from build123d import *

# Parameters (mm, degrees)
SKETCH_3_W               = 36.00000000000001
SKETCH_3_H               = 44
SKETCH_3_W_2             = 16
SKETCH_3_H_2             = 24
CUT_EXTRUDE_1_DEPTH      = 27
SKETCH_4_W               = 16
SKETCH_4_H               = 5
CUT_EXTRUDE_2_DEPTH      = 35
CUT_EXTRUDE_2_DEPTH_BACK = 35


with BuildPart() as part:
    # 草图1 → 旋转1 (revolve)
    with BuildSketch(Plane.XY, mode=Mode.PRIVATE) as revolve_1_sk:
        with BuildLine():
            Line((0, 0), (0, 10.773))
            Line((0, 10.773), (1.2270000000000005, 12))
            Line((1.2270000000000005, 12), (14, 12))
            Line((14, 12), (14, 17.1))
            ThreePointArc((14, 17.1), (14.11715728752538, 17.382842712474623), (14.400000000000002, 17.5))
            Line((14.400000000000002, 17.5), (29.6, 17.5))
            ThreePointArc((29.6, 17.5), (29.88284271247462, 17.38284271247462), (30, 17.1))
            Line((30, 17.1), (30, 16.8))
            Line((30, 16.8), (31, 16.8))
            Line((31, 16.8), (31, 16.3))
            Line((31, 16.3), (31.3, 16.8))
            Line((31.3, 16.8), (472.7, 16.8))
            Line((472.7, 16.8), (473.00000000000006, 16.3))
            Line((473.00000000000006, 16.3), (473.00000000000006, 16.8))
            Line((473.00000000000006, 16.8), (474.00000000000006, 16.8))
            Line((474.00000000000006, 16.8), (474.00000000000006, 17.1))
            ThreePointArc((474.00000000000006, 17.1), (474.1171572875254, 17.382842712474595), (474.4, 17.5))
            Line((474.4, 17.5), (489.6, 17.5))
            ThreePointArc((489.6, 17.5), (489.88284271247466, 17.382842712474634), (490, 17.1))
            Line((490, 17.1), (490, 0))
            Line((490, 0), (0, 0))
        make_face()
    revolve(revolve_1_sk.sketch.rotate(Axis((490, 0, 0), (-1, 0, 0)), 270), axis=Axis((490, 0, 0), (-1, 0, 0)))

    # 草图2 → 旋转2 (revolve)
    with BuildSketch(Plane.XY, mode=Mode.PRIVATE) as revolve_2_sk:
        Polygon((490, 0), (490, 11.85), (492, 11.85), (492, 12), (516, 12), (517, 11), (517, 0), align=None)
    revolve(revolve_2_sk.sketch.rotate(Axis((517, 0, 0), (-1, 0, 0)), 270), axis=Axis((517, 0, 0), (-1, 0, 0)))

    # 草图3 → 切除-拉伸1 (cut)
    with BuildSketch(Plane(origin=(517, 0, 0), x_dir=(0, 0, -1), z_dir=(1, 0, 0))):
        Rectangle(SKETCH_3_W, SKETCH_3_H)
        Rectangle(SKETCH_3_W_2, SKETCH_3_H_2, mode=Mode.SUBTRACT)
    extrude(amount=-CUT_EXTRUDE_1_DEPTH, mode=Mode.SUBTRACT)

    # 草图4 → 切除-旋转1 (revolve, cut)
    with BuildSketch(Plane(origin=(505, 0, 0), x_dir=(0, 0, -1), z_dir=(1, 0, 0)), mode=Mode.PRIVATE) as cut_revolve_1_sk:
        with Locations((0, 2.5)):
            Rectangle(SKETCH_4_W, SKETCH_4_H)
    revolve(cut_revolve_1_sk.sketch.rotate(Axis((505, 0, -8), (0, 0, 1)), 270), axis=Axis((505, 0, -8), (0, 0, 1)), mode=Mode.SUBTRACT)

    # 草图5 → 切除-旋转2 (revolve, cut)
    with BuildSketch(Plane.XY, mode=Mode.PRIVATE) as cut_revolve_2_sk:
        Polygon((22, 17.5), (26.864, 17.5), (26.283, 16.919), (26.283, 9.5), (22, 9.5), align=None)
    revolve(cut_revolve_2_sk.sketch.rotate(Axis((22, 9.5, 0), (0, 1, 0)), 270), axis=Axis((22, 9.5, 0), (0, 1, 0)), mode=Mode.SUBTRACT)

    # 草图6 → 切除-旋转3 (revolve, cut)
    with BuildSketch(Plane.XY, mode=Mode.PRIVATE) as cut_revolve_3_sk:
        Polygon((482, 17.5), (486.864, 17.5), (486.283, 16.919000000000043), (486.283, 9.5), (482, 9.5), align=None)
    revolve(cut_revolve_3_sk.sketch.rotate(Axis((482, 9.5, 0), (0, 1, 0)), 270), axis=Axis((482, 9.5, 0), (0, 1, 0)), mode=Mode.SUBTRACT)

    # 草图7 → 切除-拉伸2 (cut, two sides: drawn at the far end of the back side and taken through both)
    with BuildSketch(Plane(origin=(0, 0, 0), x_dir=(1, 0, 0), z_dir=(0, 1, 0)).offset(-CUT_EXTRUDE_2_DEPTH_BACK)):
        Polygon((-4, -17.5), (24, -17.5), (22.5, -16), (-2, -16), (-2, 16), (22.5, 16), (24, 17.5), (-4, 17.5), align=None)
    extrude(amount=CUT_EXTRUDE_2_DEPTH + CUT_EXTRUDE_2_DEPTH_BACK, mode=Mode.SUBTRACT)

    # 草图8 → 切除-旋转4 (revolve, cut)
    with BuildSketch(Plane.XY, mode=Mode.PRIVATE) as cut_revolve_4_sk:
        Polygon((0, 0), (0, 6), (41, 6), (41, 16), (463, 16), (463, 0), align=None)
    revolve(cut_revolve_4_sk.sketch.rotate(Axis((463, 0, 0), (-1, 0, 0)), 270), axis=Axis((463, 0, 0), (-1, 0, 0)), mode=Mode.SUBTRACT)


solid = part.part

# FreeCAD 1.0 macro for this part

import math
import FreeCAD as App
import Part
import Sketcher
Q = App.Units.Quantity


def add_polygon(sketch, points):
    """Adds a closed chain of lines whose ends are joined by coincident constraints."""
    first, n = sketch.GeometryCount, len(points)
    for a, b in zip(points, points[1:] + points[:1]):
        sketch.addGeometry(Part.LineSegment(App.Vector(*a, 0), App.Vector(*b, 0)), False)
    for i in range(n):
        sketch.addConstraint(Sketcher.Constraint("Coincident", first + i, 2, first + (i + 1) % n, 1))

doc = App.newDocument("Part")
params = doc.addObject("Spreadsheet::Sheet", "Params")
for row, (alias, value) in enumerate([
    ("sketch1_radius", "0.4 mm"),
    ("sketch1_width", "490 mm"),
    ("sketch1_width2", "1 mm"),
    ("sketch1_width3", "15.2 mm"),
    ("sketch1_width4", "441.4 mm"),
    ("revolution_angle", "360 deg"),
    ("sketch2_width", "27 mm"),
    ("sketch2_width2", "24 mm"),
    ("sketch2_width3", "2 mm"),
    ("sketch2_height", "11 mm"),
    ("sketch2_height2", "11.85 mm"),
    ("revolution2_angle", "360 deg"),
    ("sketch3_width", "44 mm"),
    ("sketch3_width2", "24 mm"),
    ("sketch3_height", "36 mm"),
    ("sketch3_height2", "16 mm"),
    ("pocket1_length", "27 mm"),
    ("sketch4_width", "5 mm"),
    ("sketch4_height", "16 mm"),
    ("groove_angle", "360 deg"),
    ("sketch5_height", "8 mm"),
    ("groove2_angle", "360 deg"),
    ("sketch6_height", "8 mm"),
    ("groove3_angle", "360 deg"),
    ("sketch7_width", "28 mm"),
    ("sketch7_height", "32 mm"),
    ("sketch7_height2", "35 mm"),
    ("sketch7_width2", "24.5 mm"),
    ("sketch8_width", "463 mm"),
    ("sketch8_width2", "422 mm"),
    ("sketch8_height", "6 mm"),
    ("sketch8_height2", "16 mm"),
    ("groove4_angle", "360 deg"),
], start=1):
    params.set(f"A{row}", alias)
    params.set(f"B{row}", "=" + value)
    params.setAlias(f"B{row}", alias)

body = doc.addObject("PartDesign::Body", "Body")

# Sketch on XY plane
sketch1 = body.newObject("Sketcher::SketchObject", "Sketch")
sketch1.AttachmentSupport = (doc.getObject("XY_Plane"), [""])
sketch1.MapMode = "FlatFace"
sketch1.addGeometry(Part.LineSegment(App.Vector(0, 10.77, 0), App.Vector(0, 0, 0)), False)
sketch1.addGeometry(Part.LineSegment(App.Vector(0, 0, 0), App.Vector(490, 0, 0)), False)
sketch1.addGeometry(Part.LineSegment(App.Vector(490, 0, 0), App.Vector(490, 17.1, 0)), False)
sketch1.addGeometry(Part.ArcOfCircle(Part.Circle(App.Vector(489.6, 17.1, 0), App.Vector(0, 0, 1), 0.4), math.radians(0), math.radians(90)), False)
sketch1.addGeometry(Part.LineSegment(App.Vector(489.6, 17.5, 0), App.Vector(474.4, 17.5, 0)), False)
sketch1.addGeometry(Part.ArcOfCircle(Part.Circle(App.Vector(474.4, 17.1, 0), App.Vector(0, 0, 1), 0.4), math.radians(90), math.radians(180)), False)
sketch1.addGeometry(Part.LineSegment(App.Vector(474, 17.1, 0), App.Vector(474, 16.8, 0)), False)
sketch1.addGeometry(Part.LineSegment(App.Vector(474, 16.8, 0), App.Vector(473, 16.8, 0)), False)
sketch1.addGeometry(Part.LineSegment(App.Vector(473, 16.8, 0), App.Vector(473, 16.3, 0)), False)
sketch1.addGeometry(Part.LineSegment(App.Vector(473, 16.3, 0), App.Vector(472.7, 16.8, 0)), False)
sketch1.addGeometry(Part.LineSegment(App.Vector(472.7, 16.8, 0), App.Vector(31.3, 16.8, 0)), False)
sketch1.addGeometry(Part.LineSegment(App.Vector(31.3, 16.8, 0), App.Vector(31, 16.3, 0)), False)
sketch1.addGeometry(Part.LineSegment(App.Vector(31, 16.3, 0), App.Vector(31, 16.8, 0)), False)
sketch1.addGeometry(Part.LineSegment(App.Vector(31, 16.8, 0), App.Vector(30, 16.8, 0)), False)
sketch1.addGeometry(Part.LineSegment(App.Vector(30, 16.8, 0), App.Vector(30, 17.1, 0)), False)
sketch1.addGeometry(Part.ArcOfCircle(Part.Circle(App.Vector(29.6, 17.1, 0), App.Vector(0, 0, 1), 0.4), math.radians(0), math.radians(90)), False)
sketch1.addGeometry(Part.LineSegment(App.Vector(29.6, 17.5, 0), App.Vector(14.4, 17.5, 0)), False)
sketch1.addGeometry(Part.ArcOfCircle(Part.Circle(App.Vector(14.4, 17.1, 0), App.Vector(0, 0, 1), 0.4), math.radians(90), math.radians(180)), False)
sketch1.addGeometry(Part.LineSegment(App.Vector(14, 17.1, 0), App.Vector(14, 12, 0)), False)
sketch1.addGeometry(Part.LineSegment(App.Vector(14, 12, 0), App.Vector(1.23, 12, 0)), False)
sketch1.addGeometry(Part.LineSegment(App.Vector(1.23, 12, 0), App.Vector(0, 10.77, 0)), False)
sketch1.addConstraint(Sketcher.Constraint("Coincident", 0, 2, 1, 1))
sketch1.addConstraint(Sketcher.Constraint("Coincident", 1, 2, 2, 1))
sketch1.addConstraint(Sketcher.Constraint("Tangent", 2, 2, 3, 1))
sketch1.addConstraint(Sketcher.Constraint("Tangent", 3, 2, 4, 1))
sketch1.addConstraint(Sketcher.Constraint("Tangent", 4, 2, 5, 1))
sketch1.addConstraint(Sketcher.Constraint("Tangent", 5, 2, 6, 1))
sketch1.addConstraint(Sketcher.Constraint("Coincident", 6, 2, 7, 1))
sketch1.addConstraint(Sketcher.Constraint("Coincident", 7, 2, 8, 1))
sketch1.addConstraint(Sketcher.Constraint("Coincident", 8, 2, 9, 1))
sketch1.addConstraint(Sketcher.Constraint("Coincident", 9, 2, 10, 1))
sketch1.addConstraint(Sketcher.Constraint("Coincident", 10, 2, 11, 1))
sketch1.addConstraint(Sketcher.Constraint("Coincident", 11, 2, 12, 1))
sketch1.addConstraint(Sketcher.Constraint("Coincident", 12, 2, 13, 1))
sketch1.addConstraint(Sketcher.Constraint("Coincident", 13, 2, 14, 1))
sketch1.addConstraint(Sketcher.Constraint("Tangent", 14, 2, 15, 1))
sketch1.addConstraint(Sketcher.Constraint("Tangent", 15, 2, 16, 1))
sketch1.addConstraint(Sketcher.Constraint("Tangent", 16, 2, 17, 1))
sketch1.addConstraint(Sketcher.Constraint("Tangent", 17, 2, 18, 1))
sketch1.addConstraint(Sketcher.Constraint("Coincident", 18, 2, 19, 1))
sketch1.addConstraint(Sketcher.Constraint("Coincident", 19, 2, 20, 1))
sketch1.addConstraint(Sketcher.Constraint("Coincident", 20, 2, 0, 1))
sketch1.addConstraint(Sketcher.Constraint("Vertical", 0))
sketch1.addConstraint(Sketcher.Constraint("Horizontal", 1))
sketch1.addConstraint(Sketcher.Constraint("Vertical", 2))
sketch1.addConstraint(Sketcher.Constraint("Horizontal", 4))
sketch1.addConstraint(Sketcher.Constraint("Vertical", 6))
sketch1.addConstraint(Sketcher.Constraint("Horizontal", 7))
sketch1.addConstraint(Sketcher.Constraint("Vertical", 8))
sketch1.addConstraint(Sketcher.Constraint("Horizontal", 10))
sketch1.addConstraint(Sketcher.Constraint("Vertical", 12))
sketch1.addConstraint(Sketcher.Constraint("Horizontal", 13))
sketch1.addConstraint(Sketcher.Constraint("Vertical", 14))
sketch1.addConstraint(Sketcher.Constraint("Horizontal", 16))
sketch1.addConstraint(Sketcher.Constraint("Vertical", 18))
sketch1.addConstraint(Sketcher.Constraint("Horizontal", 19))
sketch1.addConstraint(Sketcher.Constraint("Coincident", 0, 2, -1, 1))
sketch1.addConstraint(Sketcher.Constraint("Equal", 3, 5))
sketch1.addConstraint(Sketcher.Constraint("Equal", 5, 15))
sketch1.addConstraint(Sketcher.Constraint("Equal", 15, 17))
sketch1.addConstraint(Sketcher.Constraint("Horizontal", 5, 3, 15, 3))
sketch1.addConstraint(Sketcher.Constraint("Horizontal", 7, 2, 9, 2))
sketch1.addConstraint(Sketcher.Constraint("Horizontal", 8, 2, 11, 2))
sketch1.addConstraint(Sketcher.Constraint("Horizontal", 10, 2, 12, 2))
sketch1.addConstraint(Sketcher.Constraint("Equal", 7, 13))
sketch1.addConstraint(Sketcher.Constraint("Equal", 4, 16))
sketch1.addConstraint(Sketcher.Constraint("Equal", 9, 11))
sketch1.addConstraint(Sketcher.Constraint("Radius", 3, Q("0.4 mm")))
sketch1.addConstraint(Sketcher.Constraint("DistanceX", 1, 1, 1, 2, Q("490 mm")))
sketch1.addConstraint(Sketcher.Constraint("DistanceX", 7, 2, 7, 1, Q("1 mm")))
sketch1.addConstraint(Sketcher.Constraint("Angle", 20, Q("-135 deg")))
sketch1.addConstraint(Sketcher.Constraint("DistanceX", 4, 2, 4, 1, Q("15.2 mm")))
sketch1.addConstraint(Sketcher.Constraint("DistanceX", 10, 2, 10, 1, Q("441.4 mm")))
sketch1.addConstraint(Sketcher.Constraint("DistanceY", 2, 1, 2, 2, Q("17.1 mm")))
sketch1.addConstraint(Sketcher.Constraint("DistanceY", 6, 2, 6, 1, Q("0.3 mm")))
sketch1.addConstraint(Sketcher.Constraint("DistanceY", 8, 2, 8, 1, Q("0.5 mm")))
sketch1.addConstraint(Sketcher.Constraint("DistanceY", 18, 2, 18, 1, Q("5.1 mm")))
sketch1.addConstraint(Sketcher.Constraint("DistanceX", -1, 1, 11, 2, Q("31 mm")))
sketch1.addConstraint(Sketcher.Constraint("DistanceX", 19, 2, 19, 1, Q("12.773 mm")))
sketch1.setExpression("Constraints[46]", "Params.sketch1_radius")
sketch1.setExpression("Constraints[47]", "Params.sketch1_width")
sketch1.setExpression("Constraints[48]", "Params.sketch1_width2")
sketch1.setExpression("Constraints[50]", "Params.sketch1_width3")
sketch1.setExpression("Constraints[51]", "Params.sketch1_width4")
revolution = body.newObject("PartDesign::Revolution", "Revolution")
revolution.Profile = sketch1
revolution.ReferenceAxis = (sketch1, ["H_Axis"])
revolution.setExpression("Angle", "Params.revolution_angle")

# Sketch on XY plane
sketch2 = body.newObject("Sketcher::SketchObject", "Sketch001")
sketch2.AttachmentSupport = (doc.getObject("XY_Plane"), [""])
sketch2.MapMode = "FlatFace"
add_polygon(sketch2, [(490, 11.85), (490, 0), (517, 0), (517, 11), (516, 12), (492, 12), (492, 11.85)])  # lines 0-6
sketch2.addConstraint(Sketcher.Constraint("Vertical", 0))
sketch2.addConstraint(Sketcher.Constraint("Horizontal", 1))
sketch2.addConstraint(Sketcher.Constraint("Vertical", 2))
sketch2.addConstraint(Sketcher.Constraint("Horizontal", 4))
sketch2.addConstraint(Sketcher.Constraint("Vertical", 5))
sketch2.addConstraint(Sketcher.Constraint("Horizontal", 6))
sketch2.addConstraint(Sketcher.Constraint("PointOnObject", 0, 2, -1))
sketch2.addConstraint(Sketcher.Constraint("DistanceX", 1, 1, 1, 2, Q("27 mm")))
sketch2.addConstraint(Sketcher.Constraint("DistanceX", 4, 2, 4, 1, Q("24 mm")))
sketch2.addConstraint(Sketcher.Constraint("DistanceX", 6, 2, 6, 1, Q("2 mm")))
sketch2.addConstraint(Sketcher.Constraint("DistanceY", 2, 1, 2, 2, Q("11 mm")))
sketch2.addConstraint(Sketcher.Constraint("Angle", 3, Q("135 deg")))
sketch2.addConstraint(Sketcher.Constraint("DistanceX", -1, 1, 0, 2, Q("490 mm")))
sketch2.addConstraint(Sketcher.Constraint("DistanceY", 0, 2, 0, 1, Q("11.85 mm")))
sketch2.setExpression("Constraints[14]", "Params.sketch2_width")
sketch2.setExpression("Constraints[15]", "Params.sketch2_width2")
sketch2.setExpression("Constraints[16]", "Params.sketch2_width3")
sketch2.setExpression("Constraints[17]", "Params.sketch2_height")
sketch2.setExpression("Constraints[20]", "Params.sketch2_height2")
revolution2 = body.newObject("PartDesign::Revolution", "Revolution001")
revolution2.Profile = sketch2
revolution2.ReferenceAxis = (sketch2, ["H_Axis"])
revolution2.setExpression("Angle", "Params.revolution2_angle")

# Sketch on YZ plane
sketch3 = body.newObject("Sketcher::SketchObject", "Sketch002")
sketch3.AttachmentSupport = (doc.getObject("YZ_Plane"), [""])
sketch3.MapMode = "FlatFace"
sketch3.AttachmentOffset = App.Placement(App.Vector(0, 0, 517), App.Rotation())
add_polygon(sketch3, [(22, 18), (-22, 18), (-22, -18), (22, -18)])  # lines 0-3
add_polygon(sketch3, [(-12, -8), (-12, 8), (12, 8), (12, -8)])  # lines 4-7
sketch3.addConstraint(Sketcher.Constraint("Horizontal", 0))
sketch3.addConstraint(Sketcher.Constraint("Vertical", 1))
sketch3.addConstraint(Sketcher.Constraint("Horizontal", 2))
sketch3.addConstraint(Sketcher.Constraint("Vertical", 3))
sketch3.addConstraint(Sketcher.Constraint("Vertical", 4))
sketch3.addConstraint(Sketcher.Constraint("Horizontal", 5))
sketch3.addConstraint(Sketcher.Constraint("Vertical", 6))
sketch3.addConstraint(Sketcher.Constraint("Horizontal", 7))
sketch3.addConstraint(Sketcher.Constraint("Symmetric", 0, 2, 2, 2, -1, 1))
sketch3.addConstraint(Sketcher.Constraint("Symmetric", 4, 2, 6, 2, -1, 1))
sketch3.addConstraint(Sketcher.Constraint("DistanceX", 0, 2, 0, 1, Q("44 mm")))
sketch3.addConstraint(Sketcher.Constraint("DistanceX", 5, 1, 5, 2, Q("24 mm")))
sketch3.addConstraint(Sketcher.Constraint("DistanceY", 1, 2, 1, 1, Q("36 mm")))
sketch3.addConstraint(Sketcher.Constraint("DistanceY", 4, 1, 4, 2, Q("16 mm")))
sketch3.setExpression("Constraints[18]", "Params.sketch3_width")
sketch3.setExpression("Constraints[19]", "Params.sketch3_width2")
sketch3.setExpression("Constraints[20]", "Params.sketch3_height")
sketch3.setExpression("Constraints[21]", "Params.sketch3_height2")
pocket1 = body.newObject("PartDesign::Pocket", "Pocket")
pocket1.Profile = sketch3
pocket1.setExpression("Length", "Params.pocket1_length")

# Sketch on YZ plane
sketch4 = body.newObject("Sketcher::SketchObject", "Sketch003")
sketch4.AttachmentSupport = (doc.getObject("YZ_Plane"), [""])
sketch4.MapMode = "FlatFace"
sketch4.AttachmentOffset = App.Placement(App.Vector(0, 0, 505), App.Rotation())
add_polygon(sketch4, [(5, 8), (0, 8), (0, -8), (5, -8)])  # lines 0-3
sketch4.addConstraint(Sketcher.Constraint("Horizontal", 0))
sketch4.addConstraint(Sketcher.Constraint("Vertical", 1))
sketch4.addConstraint(Sketcher.Constraint("Horizontal", 2))
sketch4.addConstraint(Sketcher.Constraint("Vertical", 3))
sketch4.addConstraint(Sketcher.Constraint("Symmetric", 0, 2, 1, 2, -1, 1))
sketch4.addConstraint(Sketcher.Constraint("DistanceX", 0, 2, 0, 1, Q("5 mm")))
sketch4.addConstraint(Sketcher.Constraint("DistanceY", 1, 2, 1, 1, Q("16 mm")))
sketch4.setExpression("Constraints[9]", "Params.sketch4_width")
sketch4.setExpression("Constraints[10]", "Params.sketch4_height")
groove = body.newObject("PartDesign::Groove", "Groove")
groove.Profile = sketch4
groove.ReferenceAxis = (sketch4, ["V_Axis"])
groove.setExpression("Angle", "Params.groove_angle")

# Sketch on XY plane
sketch5 = body.newObject("Sketcher::SketchObject", "Sketch004")
sketch5.AttachmentSupport = (doc.getObject("XY_Plane"), [""])
sketch5.MapMode = "FlatFace"
add_polygon(sketch5, [(26.9, 17.5), (22, 17.5), (22, 9.5), (26.3, 9.5), (26.3, 16.9)])  # lines 0-4
sketch5.addGeometry(Part.LineSegment(App.Vector(22, 9.5, 0), App.Vector(22, 17.5, 0)), True)  # axis
sketch5.addConstraint(Sketcher.Constraint("Horizontal", 0))
sketch5.addConstraint(Sketcher.Constraint("Vertical", 1))
sketch5.addConstraint(Sketcher.Constraint("Horizontal", 2))
sketch5.addConstraint(Sketcher.Constraint("Vertical", 3))
sketch5.addConstraint(Sketcher.Constraint("Vertical", 5))
sketch5.addConstraint(Sketcher.Constraint("Coincident", 5, 1, 1, 2))
sketch5.addConstraint(Sketcher.Constraint("Horizontal", 4, 2, 5, 2))
sketch5.addConstraint(Sketcher.Constraint("DistanceY", 1, 2, 1, 1, Q("8 mm")))
sketch5.addConstraint(Sketcher.Constraint("Angle", 4, Q("45 deg")))
sketch5.addConstraint(Sketcher.Constraint("DistanceX", -1, 1, 0, 2, Q("22 mm")))
sketch5.addConstraint(Sketcher.Constraint("DistanceY", -1, 1, 0, 2, Q("17.5 mm")))
sketch5.addConstraint(Sketcher.Constraint("DistanceX", 0, 2, 0, 1, Q("4.864 mm")))
sketch5.addConstraint(Sketcher.Constraint("DistanceX", 2, 1, 2, 2, Q("4.283 mm")))
sketch5.setExpression("Constraints[12]", "Params.sketch5_height")
groove2 = body.newObject("PartDesign::Groove", "Groove001")
groove2.Profile = sketch5
groove2.ReferenceAxis = (sketch5, ["Axis0"])
groove2.setExpression("Angle", "Params.groove2_angle")

# Sketch on XY plane
sketch6 = body.newObject("Sketcher::SketchObject", "Sketch005")
sketch6.AttachmentSupport = (doc.getObject("XY_Plane"), [""])
sketch6.MapMode = "FlatFace"
add_polygon(sketch6, [(486.9, 17.5), (482, 17.5), (482, 9.5), (486.3, 9.5), (486.3, 16.9)])  # lines 0-4
sketch6.addGeometry(Part.LineSegment(App.Vector(482, 9.5, 0), App.Vector(482, 17.5, 0)), True)  # axis
sketch6.addConstraint(Sketcher.Constraint("Horizontal", 0))
sketch6.addConstraint(Sketcher.Constraint("Vertical", 1))
sketch6.addConstraint(Sketcher.Constraint("Horizontal", 2))
sketch6.addConstraint(Sketcher.Constraint("Vertical", 3))
sketch6.addConstraint(Sketcher.Constraint("Vertical", 5))
sketch6.addConstraint(Sketcher.Constraint("Coincident", 5, 1, 1, 2))
sketch6.addConstraint(Sketcher.Constraint("Horizontal", 4, 2, 5, 2))
sketch6.addConstraint(Sketcher.Constraint("DistanceY", 1, 2, 1, 1, Q("8 mm")))
sketch6.addConstraint(Sketcher.Constraint("Angle", 4, Q("45 deg")))
sketch6.addConstraint(Sketcher.Constraint("DistanceX", -1, 1, 0, 2, Q("482 mm")))
sketch6.addConstraint(Sketcher.Constraint("DistanceY", -1, 1, 0, 2, Q("17.5 mm")))
sketch6.addConstraint(Sketcher.Constraint("DistanceX", 0, 2, 0, 1, Q("4.864 mm")))
sketch6.addConstraint(Sketcher.Constraint("DistanceX", 2, 1, 2, 2, Q("4.283 mm")))
sketch6.setExpression("Constraints[12]", "Params.sketch6_height")
groove3 = body.newObject("PartDesign::Groove", "Groove002")
groove3.Profile = sketch6
groove3.ReferenceAxis = (sketch6, ["Axis0"])
groove3.setExpression("Angle", "Params.groove3_angle")

# Sketch on XZ plane
sketch7 = body.newObject("Sketcher::SketchObject", "Sketch006")
sketch7.AttachmentSupport = (doc.getObject("XZ_Plane"), [""])
sketch7.MapMode = "FlatFace"
add_polygon(sketch7, [(-4, 17.5), (24, 17.5), (22.5, 16), (-2, 16), (-2, -16), (22.5, -16), (24, -17.5), (-4, -17.5)])  # lines 0-7
sketch7.addConstraint(Sketcher.Constraint("Horizontal", 0))
sketch7.addConstraint(Sketcher.Constraint("Horizontal", 2))
sketch7.addConstraint(Sketcher.Constraint("Vertical", 3))
sketch7.addConstraint(Sketcher.Constraint("Horizontal", 4))
sketch7.addConstraint(Sketcher.Constraint("Horizontal", 6))
sketch7.addConstraint(Sketcher.Constraint("Vertical", 7))
sketch7.addConstraint(Sketcher.Constraint("Symmetric", 1, 2, 4, 2, -1))
sketch7.addConstraint(Sketcher.Constraint("Symmetric", 0, 2, 5, 2, -1))
sketch7.addConstraint(Sketcher.Constraint("Perpendicular", 1, 5))
sketch7.addConstraint(Sketcher.Constraint("DistanceX", 0, 1, 0, 2, Q("28 mm")))
sketch7.addConstraint(Sketcher.Constraint("DistanceY", 3, 2, 3, 1, Q("32 mm")))
sketch7.addConstraint(Sketcher.Constraint("DistanceY", 7, 1, 7, 2, Q("35 mm")))
sketch7.addConstraint(Sketcher.Constraint("DistanceX", 2, 2, 2, 1, Q("24.5 mm")))
sketch7.addConstraint(Sketcher.Constraint("DistanceX", -1, 1, 0, 2, Q("24 mm")))
sketch7.setExpression("Constraints[17]", "Params.sketch7_width")
sketch7.setExpression("Constraints[18]", "Params.sketch7_height")
sketch7.setExpression("Constraints[19]", "Params.sketch7_height2")
sketch7.setExpression("Constraints[20]", "Params.sketch7_width2")
pocket2 = body.newObject("PartDesign::Pocket", "Pocket001")
pocket2.Profile = sketch7
pocket2.Type = "ThroughAll"
pocket2.Midplane = True

# Sketch on XY plane
sketch8 = body.newObject("Sketcher::SketchObject", "Sketch007")
sketch8.AttachmentSupport = (doc.getObject("XY_Plane"), [""])
sketch8.MapMode = "FlatFace"
add_polygon(sketch8, [(0, 6), (0, 0), (463, 0), (463, 16), (41, 16), (41, 6)])  # lines 0-5
sketch8.addConstraint(Sketcher.Constraint("Vertical", 0))
sketch8.addConstraint(Sketcher.Constraint("Horizontal", 1))
sketch8.addConstraint(Sketcher.Constraint("Vertical", 2))
sketch8.addConstraint(Sketcher.Constraint("Horizontal", 3))
sketch8.addConstraint(Sketcher.Constraint("Vertical", 4))
sketch8.addConstraint(Sketcher.Constraint("Horizontal", 5))
sketch8.addConstraint(Sketcher.Constraint("Coincident", 0, 2, -1, 1))
sketch8.addConstraint(Sketcher.Constraint("DistanceX", 1, 1, 1, 2, Q("463 mm")))
sketch8.addConstraint(Sketcher.Constraint("DistanceX", 3, 2, 3, 1, Q("422 mm")))
sketch8.addConstraint(Sketcher.Constraint("DistanceY", 0, 2, 0, 1, Q("6 mm")))
sketch8.addConstraint(Sketcher.Constraint("DistanceY", 2, 1, 2, 2, Q("16 mm")))
sketch8.setExpression("Constraints[13]", "Params.sketch8_width")
sketch8.setExpression("Constraints[14]", "Params.sketch8_width2")
sketch8.setExpression("Constraints[15]", "Params.sketch8_height")
sketch8.setExpression("Constraints[16]", "Params.sketch8_height2")
groove4 = body.newObject("PartDesign::Groove", "Groove003")
groove4.Profile = sketch8
groove4.ReferenceAxis = (sketch8, ["H_Axis"])
groove4.setExpression("Angle", "Params.groove4_angle")

doc.recompute()
